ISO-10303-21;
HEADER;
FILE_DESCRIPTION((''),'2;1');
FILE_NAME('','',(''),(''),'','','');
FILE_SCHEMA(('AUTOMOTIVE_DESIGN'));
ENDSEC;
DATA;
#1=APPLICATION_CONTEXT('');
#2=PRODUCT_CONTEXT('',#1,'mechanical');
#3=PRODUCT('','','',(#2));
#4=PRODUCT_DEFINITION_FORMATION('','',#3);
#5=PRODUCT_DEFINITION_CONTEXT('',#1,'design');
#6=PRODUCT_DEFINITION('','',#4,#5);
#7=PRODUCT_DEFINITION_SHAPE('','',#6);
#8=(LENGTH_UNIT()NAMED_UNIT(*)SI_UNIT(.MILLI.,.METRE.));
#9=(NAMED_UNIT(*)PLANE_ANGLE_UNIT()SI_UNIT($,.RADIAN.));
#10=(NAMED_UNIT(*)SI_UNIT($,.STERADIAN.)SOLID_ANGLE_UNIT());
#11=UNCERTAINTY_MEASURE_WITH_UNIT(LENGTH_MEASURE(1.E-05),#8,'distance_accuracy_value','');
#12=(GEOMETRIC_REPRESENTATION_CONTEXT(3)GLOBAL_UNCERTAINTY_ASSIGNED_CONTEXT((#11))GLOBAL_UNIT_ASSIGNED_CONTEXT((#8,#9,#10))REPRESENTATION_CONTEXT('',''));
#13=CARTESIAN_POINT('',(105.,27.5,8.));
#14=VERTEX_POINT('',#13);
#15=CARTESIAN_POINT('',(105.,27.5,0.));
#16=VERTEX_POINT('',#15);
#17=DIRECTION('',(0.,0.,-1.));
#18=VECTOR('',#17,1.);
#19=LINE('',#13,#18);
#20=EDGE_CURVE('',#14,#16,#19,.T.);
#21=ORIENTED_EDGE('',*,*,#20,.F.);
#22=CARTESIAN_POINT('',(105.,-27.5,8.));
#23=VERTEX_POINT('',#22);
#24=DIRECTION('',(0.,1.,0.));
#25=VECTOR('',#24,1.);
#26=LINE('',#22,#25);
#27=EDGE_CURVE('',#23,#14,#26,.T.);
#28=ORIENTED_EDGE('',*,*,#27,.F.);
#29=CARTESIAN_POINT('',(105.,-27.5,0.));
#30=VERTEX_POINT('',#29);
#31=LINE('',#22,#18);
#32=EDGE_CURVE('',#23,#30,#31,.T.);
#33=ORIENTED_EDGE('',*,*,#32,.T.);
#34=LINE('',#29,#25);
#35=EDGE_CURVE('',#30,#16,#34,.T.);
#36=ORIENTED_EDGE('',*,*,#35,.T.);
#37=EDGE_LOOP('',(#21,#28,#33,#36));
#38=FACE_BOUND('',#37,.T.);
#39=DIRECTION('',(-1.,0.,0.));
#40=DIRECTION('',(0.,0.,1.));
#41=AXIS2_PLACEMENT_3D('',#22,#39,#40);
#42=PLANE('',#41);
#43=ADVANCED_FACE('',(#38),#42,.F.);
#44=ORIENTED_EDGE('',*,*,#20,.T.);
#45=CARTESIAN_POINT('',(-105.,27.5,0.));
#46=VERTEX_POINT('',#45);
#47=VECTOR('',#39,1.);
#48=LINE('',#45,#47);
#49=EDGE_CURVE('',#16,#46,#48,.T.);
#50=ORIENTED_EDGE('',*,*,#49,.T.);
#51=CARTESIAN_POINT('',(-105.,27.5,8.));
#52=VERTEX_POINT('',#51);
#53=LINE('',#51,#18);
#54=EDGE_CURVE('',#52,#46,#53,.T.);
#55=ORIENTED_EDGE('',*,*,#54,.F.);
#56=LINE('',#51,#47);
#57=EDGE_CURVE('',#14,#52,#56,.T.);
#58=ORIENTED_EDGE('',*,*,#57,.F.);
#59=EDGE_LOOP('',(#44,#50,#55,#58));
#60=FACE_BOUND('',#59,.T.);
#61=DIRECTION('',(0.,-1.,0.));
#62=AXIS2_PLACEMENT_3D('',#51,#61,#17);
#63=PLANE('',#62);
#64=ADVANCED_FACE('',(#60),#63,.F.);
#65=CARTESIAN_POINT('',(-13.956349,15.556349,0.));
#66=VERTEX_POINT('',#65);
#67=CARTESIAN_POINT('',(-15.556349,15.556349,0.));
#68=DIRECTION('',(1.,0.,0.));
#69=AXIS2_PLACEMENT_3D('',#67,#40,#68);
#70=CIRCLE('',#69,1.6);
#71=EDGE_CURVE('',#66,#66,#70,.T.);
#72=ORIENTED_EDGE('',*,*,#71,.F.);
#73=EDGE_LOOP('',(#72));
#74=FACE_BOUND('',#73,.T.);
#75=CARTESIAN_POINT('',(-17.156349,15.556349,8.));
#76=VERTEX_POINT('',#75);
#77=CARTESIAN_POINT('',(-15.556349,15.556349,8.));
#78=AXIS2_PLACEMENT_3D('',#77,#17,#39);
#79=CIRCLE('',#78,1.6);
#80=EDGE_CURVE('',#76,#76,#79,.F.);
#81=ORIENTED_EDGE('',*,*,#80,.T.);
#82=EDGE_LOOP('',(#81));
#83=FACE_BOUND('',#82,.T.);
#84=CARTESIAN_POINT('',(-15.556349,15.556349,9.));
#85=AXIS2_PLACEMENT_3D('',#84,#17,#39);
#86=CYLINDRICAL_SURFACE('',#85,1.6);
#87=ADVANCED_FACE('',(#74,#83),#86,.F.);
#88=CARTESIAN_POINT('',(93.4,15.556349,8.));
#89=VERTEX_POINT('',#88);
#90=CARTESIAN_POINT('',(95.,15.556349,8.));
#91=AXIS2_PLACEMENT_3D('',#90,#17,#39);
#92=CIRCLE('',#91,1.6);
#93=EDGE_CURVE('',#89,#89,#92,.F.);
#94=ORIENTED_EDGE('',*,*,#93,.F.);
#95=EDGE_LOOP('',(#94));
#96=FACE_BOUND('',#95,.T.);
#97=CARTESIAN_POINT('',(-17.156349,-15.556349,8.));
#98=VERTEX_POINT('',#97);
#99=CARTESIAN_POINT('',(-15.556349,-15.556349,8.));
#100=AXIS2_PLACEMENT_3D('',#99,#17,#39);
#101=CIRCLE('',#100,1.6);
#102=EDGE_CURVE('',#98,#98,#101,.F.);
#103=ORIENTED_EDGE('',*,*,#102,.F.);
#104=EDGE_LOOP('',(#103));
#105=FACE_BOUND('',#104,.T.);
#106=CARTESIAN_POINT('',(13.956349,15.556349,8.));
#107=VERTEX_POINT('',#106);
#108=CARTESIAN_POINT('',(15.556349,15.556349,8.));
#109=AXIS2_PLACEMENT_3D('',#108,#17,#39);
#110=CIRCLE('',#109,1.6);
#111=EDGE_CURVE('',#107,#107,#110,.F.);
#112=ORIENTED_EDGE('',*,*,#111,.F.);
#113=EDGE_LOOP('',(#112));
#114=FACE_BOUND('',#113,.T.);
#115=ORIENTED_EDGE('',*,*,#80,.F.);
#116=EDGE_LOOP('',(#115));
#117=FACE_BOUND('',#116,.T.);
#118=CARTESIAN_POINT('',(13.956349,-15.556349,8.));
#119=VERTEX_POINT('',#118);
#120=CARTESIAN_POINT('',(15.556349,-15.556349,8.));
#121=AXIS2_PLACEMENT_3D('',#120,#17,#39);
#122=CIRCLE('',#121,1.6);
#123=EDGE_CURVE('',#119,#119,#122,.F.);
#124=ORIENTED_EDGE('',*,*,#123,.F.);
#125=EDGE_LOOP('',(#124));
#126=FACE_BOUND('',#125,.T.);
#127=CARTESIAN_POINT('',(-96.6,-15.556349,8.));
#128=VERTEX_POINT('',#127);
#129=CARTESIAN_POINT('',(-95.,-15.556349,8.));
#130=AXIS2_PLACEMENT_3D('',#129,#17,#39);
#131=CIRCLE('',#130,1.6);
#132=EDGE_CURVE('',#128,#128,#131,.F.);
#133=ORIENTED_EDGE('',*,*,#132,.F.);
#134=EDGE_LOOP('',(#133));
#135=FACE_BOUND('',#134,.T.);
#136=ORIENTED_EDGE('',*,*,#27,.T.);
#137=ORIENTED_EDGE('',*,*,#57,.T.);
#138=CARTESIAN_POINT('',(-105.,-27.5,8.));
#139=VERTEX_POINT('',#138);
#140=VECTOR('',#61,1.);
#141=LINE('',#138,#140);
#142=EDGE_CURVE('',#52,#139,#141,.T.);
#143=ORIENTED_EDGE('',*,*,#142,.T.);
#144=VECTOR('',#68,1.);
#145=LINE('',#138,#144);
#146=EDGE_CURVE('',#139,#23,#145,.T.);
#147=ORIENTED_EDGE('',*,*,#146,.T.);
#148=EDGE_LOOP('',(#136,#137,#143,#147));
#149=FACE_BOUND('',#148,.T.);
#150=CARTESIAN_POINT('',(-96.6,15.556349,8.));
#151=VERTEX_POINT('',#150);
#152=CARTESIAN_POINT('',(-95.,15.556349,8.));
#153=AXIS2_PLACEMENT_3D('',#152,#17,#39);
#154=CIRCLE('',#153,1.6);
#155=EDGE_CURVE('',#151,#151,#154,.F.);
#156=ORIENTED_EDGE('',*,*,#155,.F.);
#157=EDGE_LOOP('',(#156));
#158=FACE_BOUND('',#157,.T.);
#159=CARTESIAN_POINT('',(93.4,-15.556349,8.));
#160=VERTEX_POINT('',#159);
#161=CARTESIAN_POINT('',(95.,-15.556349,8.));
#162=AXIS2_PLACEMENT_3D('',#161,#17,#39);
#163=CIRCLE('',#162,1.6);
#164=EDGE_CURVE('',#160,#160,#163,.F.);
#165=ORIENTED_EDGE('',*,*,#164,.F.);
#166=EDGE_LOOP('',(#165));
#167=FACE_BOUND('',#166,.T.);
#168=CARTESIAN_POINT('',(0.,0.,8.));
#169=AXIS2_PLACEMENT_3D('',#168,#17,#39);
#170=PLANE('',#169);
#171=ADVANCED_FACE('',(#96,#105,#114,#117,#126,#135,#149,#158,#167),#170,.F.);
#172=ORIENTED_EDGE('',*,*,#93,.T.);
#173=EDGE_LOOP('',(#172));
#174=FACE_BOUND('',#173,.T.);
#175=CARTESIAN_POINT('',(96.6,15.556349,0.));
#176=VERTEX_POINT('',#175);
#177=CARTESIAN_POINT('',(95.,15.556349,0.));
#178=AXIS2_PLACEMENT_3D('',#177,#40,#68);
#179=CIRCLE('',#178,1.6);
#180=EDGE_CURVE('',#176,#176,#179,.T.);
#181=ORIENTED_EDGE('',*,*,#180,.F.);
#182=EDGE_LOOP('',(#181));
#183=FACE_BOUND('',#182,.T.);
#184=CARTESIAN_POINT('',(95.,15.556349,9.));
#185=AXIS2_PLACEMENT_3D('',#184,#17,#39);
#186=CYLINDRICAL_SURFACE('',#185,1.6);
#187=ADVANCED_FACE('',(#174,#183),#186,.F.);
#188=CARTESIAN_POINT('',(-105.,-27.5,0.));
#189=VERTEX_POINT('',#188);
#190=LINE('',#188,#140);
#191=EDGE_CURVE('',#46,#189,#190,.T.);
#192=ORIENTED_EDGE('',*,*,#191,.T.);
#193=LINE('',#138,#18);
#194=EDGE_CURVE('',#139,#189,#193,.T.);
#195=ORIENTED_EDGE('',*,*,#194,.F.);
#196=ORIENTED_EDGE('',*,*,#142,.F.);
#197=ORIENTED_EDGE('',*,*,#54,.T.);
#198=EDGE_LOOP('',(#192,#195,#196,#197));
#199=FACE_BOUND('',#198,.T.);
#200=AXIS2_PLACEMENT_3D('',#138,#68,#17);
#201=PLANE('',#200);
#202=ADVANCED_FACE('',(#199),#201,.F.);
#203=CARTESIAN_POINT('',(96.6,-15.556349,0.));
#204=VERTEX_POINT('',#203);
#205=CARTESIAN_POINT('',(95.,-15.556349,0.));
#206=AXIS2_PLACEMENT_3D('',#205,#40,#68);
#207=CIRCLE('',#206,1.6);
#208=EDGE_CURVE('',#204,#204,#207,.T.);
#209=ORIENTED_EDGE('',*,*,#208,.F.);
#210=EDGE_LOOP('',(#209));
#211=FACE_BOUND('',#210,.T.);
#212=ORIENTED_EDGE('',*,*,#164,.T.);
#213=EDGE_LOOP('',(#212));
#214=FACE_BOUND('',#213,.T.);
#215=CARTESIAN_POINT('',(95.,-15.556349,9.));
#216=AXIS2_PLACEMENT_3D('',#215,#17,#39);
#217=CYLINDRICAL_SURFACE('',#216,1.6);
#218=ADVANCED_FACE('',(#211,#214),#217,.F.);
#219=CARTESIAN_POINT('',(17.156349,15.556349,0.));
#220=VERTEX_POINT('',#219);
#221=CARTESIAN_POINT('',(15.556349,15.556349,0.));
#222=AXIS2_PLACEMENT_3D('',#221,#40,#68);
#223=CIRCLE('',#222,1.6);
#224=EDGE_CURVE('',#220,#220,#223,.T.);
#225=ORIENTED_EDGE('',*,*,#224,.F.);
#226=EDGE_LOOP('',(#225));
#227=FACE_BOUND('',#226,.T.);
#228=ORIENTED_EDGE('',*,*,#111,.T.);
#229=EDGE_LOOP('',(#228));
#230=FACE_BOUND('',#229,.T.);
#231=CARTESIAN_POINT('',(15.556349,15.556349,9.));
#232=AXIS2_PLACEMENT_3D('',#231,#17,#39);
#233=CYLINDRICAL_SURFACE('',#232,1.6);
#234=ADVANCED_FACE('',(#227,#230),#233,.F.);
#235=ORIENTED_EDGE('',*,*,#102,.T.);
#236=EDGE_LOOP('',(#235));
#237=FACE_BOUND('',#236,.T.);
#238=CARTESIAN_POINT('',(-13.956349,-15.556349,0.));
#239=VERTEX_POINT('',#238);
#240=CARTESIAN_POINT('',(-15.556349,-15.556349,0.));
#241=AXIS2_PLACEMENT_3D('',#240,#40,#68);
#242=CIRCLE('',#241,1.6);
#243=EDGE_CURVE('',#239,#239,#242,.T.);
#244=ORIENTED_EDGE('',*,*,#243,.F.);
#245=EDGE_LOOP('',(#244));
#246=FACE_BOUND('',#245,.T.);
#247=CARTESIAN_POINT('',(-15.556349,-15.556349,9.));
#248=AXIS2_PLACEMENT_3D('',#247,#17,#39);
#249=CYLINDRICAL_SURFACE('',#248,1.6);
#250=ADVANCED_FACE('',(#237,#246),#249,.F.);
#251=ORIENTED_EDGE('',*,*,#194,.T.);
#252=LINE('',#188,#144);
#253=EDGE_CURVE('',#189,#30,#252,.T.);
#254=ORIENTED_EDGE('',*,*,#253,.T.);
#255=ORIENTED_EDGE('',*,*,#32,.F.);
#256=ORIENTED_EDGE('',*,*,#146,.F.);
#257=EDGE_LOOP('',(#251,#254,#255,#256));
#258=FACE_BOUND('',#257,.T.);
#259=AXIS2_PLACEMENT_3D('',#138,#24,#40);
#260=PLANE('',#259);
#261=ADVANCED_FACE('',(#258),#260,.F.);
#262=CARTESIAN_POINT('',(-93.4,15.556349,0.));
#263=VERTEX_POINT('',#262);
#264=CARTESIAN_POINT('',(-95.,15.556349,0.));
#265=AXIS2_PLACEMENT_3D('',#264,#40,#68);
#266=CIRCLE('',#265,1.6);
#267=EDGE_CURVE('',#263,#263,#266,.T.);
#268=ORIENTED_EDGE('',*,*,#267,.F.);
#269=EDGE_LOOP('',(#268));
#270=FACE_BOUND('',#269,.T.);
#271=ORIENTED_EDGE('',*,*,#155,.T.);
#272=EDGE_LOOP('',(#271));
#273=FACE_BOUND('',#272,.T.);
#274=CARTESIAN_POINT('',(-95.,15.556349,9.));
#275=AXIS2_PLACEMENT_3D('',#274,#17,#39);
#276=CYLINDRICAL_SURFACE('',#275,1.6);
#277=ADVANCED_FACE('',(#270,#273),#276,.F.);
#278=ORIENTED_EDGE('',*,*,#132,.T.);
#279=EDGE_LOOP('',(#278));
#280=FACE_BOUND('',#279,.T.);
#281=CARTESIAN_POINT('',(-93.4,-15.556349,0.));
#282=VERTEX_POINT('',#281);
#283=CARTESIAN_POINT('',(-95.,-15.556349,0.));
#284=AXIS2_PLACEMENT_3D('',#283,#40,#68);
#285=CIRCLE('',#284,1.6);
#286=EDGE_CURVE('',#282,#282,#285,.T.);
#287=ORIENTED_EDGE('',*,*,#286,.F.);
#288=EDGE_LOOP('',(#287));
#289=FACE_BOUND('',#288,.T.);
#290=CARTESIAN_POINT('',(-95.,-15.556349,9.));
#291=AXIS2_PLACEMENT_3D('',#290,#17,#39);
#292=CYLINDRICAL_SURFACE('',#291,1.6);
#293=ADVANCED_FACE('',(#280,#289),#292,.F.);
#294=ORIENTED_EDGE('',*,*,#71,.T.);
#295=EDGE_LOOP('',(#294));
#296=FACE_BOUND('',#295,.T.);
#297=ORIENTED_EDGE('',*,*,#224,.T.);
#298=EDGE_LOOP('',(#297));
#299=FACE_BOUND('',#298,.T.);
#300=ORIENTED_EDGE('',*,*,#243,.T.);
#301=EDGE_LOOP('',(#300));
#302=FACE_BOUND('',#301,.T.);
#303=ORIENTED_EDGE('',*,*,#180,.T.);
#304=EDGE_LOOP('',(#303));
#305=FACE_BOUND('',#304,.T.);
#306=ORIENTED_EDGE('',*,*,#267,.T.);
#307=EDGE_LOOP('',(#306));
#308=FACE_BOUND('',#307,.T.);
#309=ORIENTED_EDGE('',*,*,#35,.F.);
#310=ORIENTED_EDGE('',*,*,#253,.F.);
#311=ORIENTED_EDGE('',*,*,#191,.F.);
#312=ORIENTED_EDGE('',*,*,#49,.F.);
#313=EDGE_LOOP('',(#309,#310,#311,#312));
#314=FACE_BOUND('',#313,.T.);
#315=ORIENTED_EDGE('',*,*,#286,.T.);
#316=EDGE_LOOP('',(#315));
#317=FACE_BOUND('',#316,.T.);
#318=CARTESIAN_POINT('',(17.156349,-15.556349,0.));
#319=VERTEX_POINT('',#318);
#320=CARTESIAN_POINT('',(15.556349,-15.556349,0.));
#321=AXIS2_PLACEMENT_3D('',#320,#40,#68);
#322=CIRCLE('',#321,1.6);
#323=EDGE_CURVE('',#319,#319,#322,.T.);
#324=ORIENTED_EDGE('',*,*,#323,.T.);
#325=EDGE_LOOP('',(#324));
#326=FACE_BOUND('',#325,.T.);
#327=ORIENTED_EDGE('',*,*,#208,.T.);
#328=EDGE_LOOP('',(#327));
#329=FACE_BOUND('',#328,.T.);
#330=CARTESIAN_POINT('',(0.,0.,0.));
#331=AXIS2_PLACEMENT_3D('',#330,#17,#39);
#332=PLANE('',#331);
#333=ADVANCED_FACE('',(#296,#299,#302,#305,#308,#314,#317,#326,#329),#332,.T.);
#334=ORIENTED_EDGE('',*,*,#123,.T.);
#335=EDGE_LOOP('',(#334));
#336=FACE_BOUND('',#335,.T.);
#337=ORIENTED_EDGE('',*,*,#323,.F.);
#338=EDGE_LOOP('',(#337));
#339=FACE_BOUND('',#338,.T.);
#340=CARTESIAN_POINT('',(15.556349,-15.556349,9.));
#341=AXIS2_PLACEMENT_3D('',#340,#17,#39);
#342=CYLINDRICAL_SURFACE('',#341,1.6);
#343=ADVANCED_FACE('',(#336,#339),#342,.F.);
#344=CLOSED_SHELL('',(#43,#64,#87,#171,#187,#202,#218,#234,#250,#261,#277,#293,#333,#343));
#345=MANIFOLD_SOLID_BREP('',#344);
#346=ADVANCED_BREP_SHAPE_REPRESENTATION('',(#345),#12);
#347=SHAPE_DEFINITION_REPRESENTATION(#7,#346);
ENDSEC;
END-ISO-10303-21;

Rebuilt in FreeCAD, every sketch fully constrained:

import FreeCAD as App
import Part
import Sketcher

V = App.Vector
Q = App.Units.Quantity


def add_polygon(sketch, points):
    """Adds a closed chain of lines whose ends are joined by coincident constraints."""
    first, n = sketch.GeometryCount, len(points)
    for a, b in zip(points, points[1:] + points[:1]):
        sketch.addGeometry(Part.LineSegment(App.Vector(*a, 0), App.Vector(*b, 0)), False)
    for i in range(n):
        sketch.addConstraint(Sketcher.Constraint("Coincident", first + i, 2, first + (i + 1) % n, 1))

doc = App.newDocument("Part")
params = doc.addObject("Spreadsheet::Sheet", "Params")
for row, (alias, value) in enumerate([
    ("sketch1_width", "210 mm"),
    ("sketch1_height", "55 mm"),
    ("pad1_length", "8 mm"),
    ("sketch2_diameter", "3.2 mm"),
    ("pocket1_length", "9 mm"),
], start=1):
    params.set(f"A{row}", alias)
    params.set(f"B{row}", "=" + value)
    params.setAlias(f"B{row}", alias)

body = doc.addObject("PartDesign::Body", "Body")

# Sketch on XY plane
sketch1 = doc.addObject("Sketcher::SketchObject", "Sketch")
body.addObject(sketch1)
sketch1.AttachmentSupport = (doc.XY_Plane, [""])
sketch1.MapMode = "FlatFace"
add_polygon(sketch1, [(-105, 28), (-105, -28), (105, -28), (105, 28)])  # lines 0-3
sketch1.addConstraint(Sketcher.Constraint("Vertical", 0))
sketch1.addConstraint(Sketcher.Constraint("Horizontal", 1))
sketch1.addConstraint(Sketcher.Constraint("Vertical", 2))
sketch1.addConstraint(Sketcher.Constraint("Horizontal", 3))
sketch1.addConstraint(Sketcher.Constraint("Symmetric", 0, 2, 2, 2, -1, 1))
sketch1.addConstraint(Sketcher.Constraint("DistanceX", 1, 1, 1, 2, Q("210 mm")))
sketch1.addConstraint(Sketcher.Constraint("DistanceY", 0, 2, 0, 1, Q("55 mm")))
sketch1.setExpression("Constraints[9]", "Params.sketch1_width")
sketch1.setExpression("Constraints[10]", "Params.sketch1_height")
pad1 = doc.addObject("PartDesign::Pad", "Pad")
body.addObject(pad1)
pad1.Profile = sketch1
pad1.setExpression("Length", "Params.pad1_length")

# Sketch on XY plane
sketch2 = doc.addObject("Sketcher::SketchObject", "Sketch001")
body.addObject(sketch2)
sketch2.AttachmentSupport = (doc.XY_Plane, [""])
sketch2.MapMode = "FlatFace"
sketch2.addGeometry(Part.Circle(V(15.6, 15.6, 0), V(0, 0, 1), 1.6), False)
sketch2.addGeometry(Part.Circle(V(-15.6, 15.6, 0), V(0, 0, 1), 1.6), False)
sketch2.addGeometry(Part.Circle(V(-15.6, -15.6, 0), V(0, 0, 1), 1.6), False)
sketch2.addGeometry(Part.Circle(V(15.6, -15.6, 0), V(0, 0, 1), 1.6), False)
sketch2.addGeometry(Part.Circle(V(-95, 15.6, 0), V(0, 0, 1), 1.6), False)
sketch2.addGeometry(Part.Circle(V(-95, -15.6, 0), V(0, 0, 1), 1.6), False)
sketch2.addGeometry(Part.Circle(V(95, 15.6, 0), V(0, 0, 1), 1.6), False)
sketch2.addGeometry(Part.Circle(V(95, -15.6, 0), V(0, 0, 1), 1.6), False)
sketch2.addConstraint(Sketcher.Constraint("Equal", 0, 1))
sketch2.addConstraint(Sketcher.Constraint("Equal", 1, 2))
sketch2.addConstraint(Sketcher.Constraint("Equal", 2, 3))
sketch2.addConstraint(Sketcher.Constraint("Equal", 3, 4))
sketch2.addConstraint(Sketcher.Constraint("Equal", 4, 5))
sketch2.addConstraint(Sketcher.Constraint("Equal", 5, 6))
sketch2.addConstraint(Sketcher.Constraint("Equal", 6, 7))
sketch2.addConstraint(Sketcher.Constraint("Symmetric", 0, 3, 2, 3, -1, 1))
sketch2.addConstraint(Sketcher.Constraint("Symmetric", 1, 3, 3, 3, -1, 1))
sketch2.addConstraint(Sketcher.Constraint("Symmetric", 5, 3, 6, 3, -1, 1))
sketch2.addConstraint(Sketcher.Constraint("Symmetric", 4, 3, 7, 3, -1, 1))
sketch2.addConstraint(Sketcher.Constraint("Symmetric", 0, 3, 1, 3, -2))
sketch2.addConstraint(Sketcher.Constraint("Symmetric", 4, 3, 6, 3, -2))
sketch2.addConstraint(Sketcher.Constraint("Horizontal", 1, 3, 4, 3))
sketch2.addConstraint(Sketcher.Constraint("Diameter", 0, Q("3.2 mm")))
sketch2.addConstraint(Sketcher.Constraint("DistanceX", 4, 3, -1, 1, Q("95 mm")))
sketch2.addConstraint(Sketcher.Constraint("DistanceX", 1, 3, 0, 3, Q("31.112698 mm")))
sketch2.addConstraint(Sketcher.Constraint("DistanceY", 2, 3, 1, 3, Q("31.112698 mm")))
sketch2.setExpression("Constraints[14]", "Params.sketch2_diameter")
pocket1 = doc.addObject("PartDesign::Pocket", "Pocket")
body.addObject(pocket1)
pocket1.Profile = sketch2
pocket1.setExpression("Length", "Params.pocket1_length")
pocket1.Reversed = True

doc.recompute()
